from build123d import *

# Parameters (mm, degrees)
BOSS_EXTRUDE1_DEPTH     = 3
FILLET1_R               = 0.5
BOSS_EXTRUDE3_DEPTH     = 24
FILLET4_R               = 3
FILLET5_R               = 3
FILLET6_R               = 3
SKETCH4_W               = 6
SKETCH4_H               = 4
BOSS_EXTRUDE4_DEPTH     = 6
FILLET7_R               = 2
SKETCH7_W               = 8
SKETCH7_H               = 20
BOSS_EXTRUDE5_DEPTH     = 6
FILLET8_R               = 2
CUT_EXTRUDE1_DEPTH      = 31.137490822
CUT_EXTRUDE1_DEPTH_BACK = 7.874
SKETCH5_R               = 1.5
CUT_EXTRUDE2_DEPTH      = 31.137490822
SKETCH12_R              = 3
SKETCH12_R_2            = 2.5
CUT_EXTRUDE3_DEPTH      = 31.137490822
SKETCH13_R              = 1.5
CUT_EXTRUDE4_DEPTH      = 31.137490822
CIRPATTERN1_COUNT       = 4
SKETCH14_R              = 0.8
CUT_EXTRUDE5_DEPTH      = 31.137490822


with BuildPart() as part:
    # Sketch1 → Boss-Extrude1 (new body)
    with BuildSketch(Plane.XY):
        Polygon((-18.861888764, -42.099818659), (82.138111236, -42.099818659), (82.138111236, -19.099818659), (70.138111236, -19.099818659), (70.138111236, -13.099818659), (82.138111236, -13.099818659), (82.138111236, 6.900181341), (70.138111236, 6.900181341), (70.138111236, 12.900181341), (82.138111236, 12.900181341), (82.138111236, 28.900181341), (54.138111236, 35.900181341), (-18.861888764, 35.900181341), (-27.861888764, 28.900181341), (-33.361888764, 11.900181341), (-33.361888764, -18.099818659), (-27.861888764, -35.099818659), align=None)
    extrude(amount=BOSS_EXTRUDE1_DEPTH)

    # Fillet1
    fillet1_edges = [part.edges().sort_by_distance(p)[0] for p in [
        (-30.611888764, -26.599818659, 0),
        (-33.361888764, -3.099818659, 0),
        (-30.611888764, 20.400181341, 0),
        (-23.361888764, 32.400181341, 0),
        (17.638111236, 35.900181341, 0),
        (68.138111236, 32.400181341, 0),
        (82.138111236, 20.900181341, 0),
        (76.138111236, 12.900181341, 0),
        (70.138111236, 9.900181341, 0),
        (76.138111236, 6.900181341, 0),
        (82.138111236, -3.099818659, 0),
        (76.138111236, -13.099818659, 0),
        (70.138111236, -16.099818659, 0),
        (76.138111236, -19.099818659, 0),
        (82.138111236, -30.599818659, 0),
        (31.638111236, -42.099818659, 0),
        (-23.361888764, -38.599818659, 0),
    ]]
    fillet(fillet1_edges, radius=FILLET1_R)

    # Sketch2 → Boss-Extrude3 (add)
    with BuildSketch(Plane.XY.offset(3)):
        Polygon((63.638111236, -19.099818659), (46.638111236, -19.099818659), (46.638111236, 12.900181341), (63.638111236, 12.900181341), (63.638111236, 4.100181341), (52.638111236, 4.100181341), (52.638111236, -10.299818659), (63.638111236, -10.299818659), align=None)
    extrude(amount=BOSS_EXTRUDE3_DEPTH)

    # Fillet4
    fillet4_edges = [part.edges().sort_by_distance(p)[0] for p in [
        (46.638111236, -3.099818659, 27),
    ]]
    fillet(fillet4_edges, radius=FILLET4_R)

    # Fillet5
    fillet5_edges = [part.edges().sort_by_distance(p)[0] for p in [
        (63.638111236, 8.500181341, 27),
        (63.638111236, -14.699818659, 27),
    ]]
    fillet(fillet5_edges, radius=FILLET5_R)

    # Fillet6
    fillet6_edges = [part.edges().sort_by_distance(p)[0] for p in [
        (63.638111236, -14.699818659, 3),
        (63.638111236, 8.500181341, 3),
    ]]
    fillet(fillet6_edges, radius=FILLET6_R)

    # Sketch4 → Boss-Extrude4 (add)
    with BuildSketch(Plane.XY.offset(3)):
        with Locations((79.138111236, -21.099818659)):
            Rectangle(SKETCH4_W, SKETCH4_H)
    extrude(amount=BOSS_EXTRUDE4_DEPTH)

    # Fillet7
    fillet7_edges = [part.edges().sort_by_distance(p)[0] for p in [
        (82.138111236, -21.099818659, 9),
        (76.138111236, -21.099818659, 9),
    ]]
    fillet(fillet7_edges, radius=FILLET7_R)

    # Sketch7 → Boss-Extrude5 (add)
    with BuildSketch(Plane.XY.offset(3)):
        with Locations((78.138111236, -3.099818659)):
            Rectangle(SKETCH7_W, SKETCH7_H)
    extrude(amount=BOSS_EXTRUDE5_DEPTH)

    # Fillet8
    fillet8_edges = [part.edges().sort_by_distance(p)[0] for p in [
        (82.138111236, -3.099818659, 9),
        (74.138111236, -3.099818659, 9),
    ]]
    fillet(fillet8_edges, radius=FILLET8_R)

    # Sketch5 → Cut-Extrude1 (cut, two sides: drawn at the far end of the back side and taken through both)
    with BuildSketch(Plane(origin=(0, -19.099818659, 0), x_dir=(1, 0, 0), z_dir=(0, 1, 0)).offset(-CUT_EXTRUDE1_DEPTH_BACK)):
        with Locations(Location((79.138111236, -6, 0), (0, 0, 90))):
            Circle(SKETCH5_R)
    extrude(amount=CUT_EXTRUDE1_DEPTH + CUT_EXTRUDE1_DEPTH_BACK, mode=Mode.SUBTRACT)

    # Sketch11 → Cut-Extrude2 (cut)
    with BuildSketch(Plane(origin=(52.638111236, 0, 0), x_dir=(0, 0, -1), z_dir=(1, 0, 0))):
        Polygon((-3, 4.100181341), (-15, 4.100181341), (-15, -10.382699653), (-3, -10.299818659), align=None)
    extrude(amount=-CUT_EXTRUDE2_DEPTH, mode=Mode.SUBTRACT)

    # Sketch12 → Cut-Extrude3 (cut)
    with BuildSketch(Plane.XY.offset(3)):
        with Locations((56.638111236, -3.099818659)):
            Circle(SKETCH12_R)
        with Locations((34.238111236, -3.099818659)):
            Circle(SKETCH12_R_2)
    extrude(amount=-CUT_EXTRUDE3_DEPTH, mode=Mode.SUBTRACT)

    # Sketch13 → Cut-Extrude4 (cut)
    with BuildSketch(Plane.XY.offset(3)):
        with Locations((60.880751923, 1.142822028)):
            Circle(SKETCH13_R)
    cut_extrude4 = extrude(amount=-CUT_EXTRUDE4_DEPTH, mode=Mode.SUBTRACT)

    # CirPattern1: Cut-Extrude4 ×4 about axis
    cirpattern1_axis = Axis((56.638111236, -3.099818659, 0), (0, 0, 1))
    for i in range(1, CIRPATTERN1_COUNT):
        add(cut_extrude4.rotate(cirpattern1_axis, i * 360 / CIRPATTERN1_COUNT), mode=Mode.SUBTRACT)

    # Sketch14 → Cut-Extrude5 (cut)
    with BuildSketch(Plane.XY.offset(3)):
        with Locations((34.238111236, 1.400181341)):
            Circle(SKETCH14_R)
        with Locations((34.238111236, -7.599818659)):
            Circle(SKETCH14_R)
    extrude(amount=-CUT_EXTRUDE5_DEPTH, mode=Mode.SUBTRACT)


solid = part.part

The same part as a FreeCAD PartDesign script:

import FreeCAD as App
import Part
import Sketcher
from FreeCAD import Vector


def edges_at(feature, points):
    """Names of the edges that pass closest to the given points."""
    edges = feature.Shape.Edges
    near = lambda p: min(range(len(edges)), key=lambda i: edges[i].distToShape(Part.Vertex(*p))[0])
    return sorted({f"Edge{near(p) + 1}" for p in points})


def add_polygon(sketch, points):
    """Adds a closed chain of lines whose ends are joined by coincident constraints."""
    first, n = sketch.GeometryCount, len(points)
    for a, b in zip(points, points[1:] + points[:1]):
        sketch.addGeometry(Part.LineSegment(App.Vector(*a, 0), App.Vector(*b, 0)), False)
    for i in range(n):
        sketch.addConstraint(Sketcher.Constraint("Coincident", first + i, 2, first + (i + 1) % n, 1))

doc = App.newDocument("Part")
body = doc.addObject("PartDesign::Body", "Body")

sketch1 = body.newObject("Sketcher::SketchObject", "Sketch")
sketch1.AttachmentSupport = (doc.getObject("XY_Plane"), [""])
sketch1.MapMode = "FlatFace"
add_polygon(sketch1, [(-19, -42), (82, -42), (82, -19), (70, -19), (70, -13), (82, -13), (82, 7), (70, 7), (70, 13), (82, 13), (82, 29), (54, 36), (-19, 36), (-28, 29), (-33, 12), (-33, -18), (-28, -35)])
sketch1.addConstraint([
    Sketcher.Constraint("Horizontal", 0),
    Sketcher.Constraint("Vertical", 1),
    Sketcher.Constraint("Horizontal", 2),
    Sketcher.Constraint("Vertical", 3),
    Sketcher.Constraint("Horizontal", 4),
    Sketcher.Constraint("Vertical", 5),
    Sketcher.Constraint("Horizontal", 6),
    Sketcher.Constraint("Vertical", 7),
    Sketcher.Constraint("Horizontal", 8),
    Sketcher.Constraint("Vertical", 9),
    Sketcher.Constraint("Horizontal", 11),
    Sketcher.Constraint("Vertical", 14),
    Sketcher.Constraint("Horizontal", 9, 2, 12, 2),
    Sketcher.Constraint("Vertical", 1, 2, 4, 2),
    Sketcher.Constraint("Vertical", 3, 2, 6, 2),
    Sketcher.Constraint("Vertical", 5, 2, 8, 2),
    Sketcher.Constraint("Vertical", 12, 2, 15, 2),
    Sketcher.Constraint("Vertical", 11, 2, 16, 2),
    Sketcher.Constraint("Equal", 3, 7),
    Sketcher.Constraint("Equal", 13, 15),
    Sketcher.Constraint("Equal", 12, 16),
    Sketcher.Constraint("DistanceX", 0, 1, 0, 2, 101.0),
    Sketcher.Constraint("DistanceX", 2, 2, 2, 1, 12.0),
    Sketcher.Constraint("DistanceX", 11, 2, 11, 1, 73.0),
    Sketcher.Constraint("DistanceY", 1, 1, 1, 2, 23.0),
    Sketcher.Constraint("DistanceY", 3, 1, 3, 2, 6.0),
    Sketcher.Constraint("DistanceY", 5, 1, 5, 2, 20.0),
    Sketcher.Constraint("DistanceY", 9, 1, 9, 2, 16.0),
    Sketcher.Constraint("DistanceY", 14, 2, 14, 1, 30.0),
    Sketcher.Constraint("DistanceY", 7, 2, 10, 2, 23.0),
    Sketcher.Constraint("DistanceX", 12, 2, 11, 2, 9.0),
    Sketcher.Constraint("DistanceX", 13, 2, 12, 2, 5.5),
    Sketcher.Constraint("DistanceX", -1, 1, 0, 2, 82.138111),
    Sketcher.Constraint("DistanceY", 0, 2, -1, 1, 42.099819),
])
pad1 = body.newObject("PartDesign::Pad", "Pad")
pad1.Profile = sketch1
pad1.Length = 3
doc.recompute()

fillet = body.newObject("PartDesign::Fillet", "Fillet")
fillet.Base = (pad1, edges_at(pad1, [
    (-30.612, -26.6, 0),
    (-33.362, -3.1, 0),
    (-30.612, 20.4, 0),
    (-23.362, 32.4, 0),
    (17.638, 35.9, 0),
    (68.138, 32.4, 0),
    (82.138, 20.9, 0),
    (76.138, 12.9, 0),
    (70.138, 9.9, 0),
    (76.138, 6.9, 0),
    (82.138, -3.1, 0),
    (76.138, -13.1, 0),
    (70.138, -16.1, 0),
    (76.138, -19.1, 0),
    (82.138, -30.6, 0),
    (31.638, -42.1, 0),
    (-23.362, -38.6, 0),
]))
fillet.Radius = 0.5

sketch2 = body.newObject("Sketcher::SketchObject", "Sketch001")
sketch2.AttachmentSupport = (doc.getObject("XY_Plane"), [""])
sketch2.MapMode = "FlatFace"
sketch2.AttachmentOffset = App.Placement(Vector(0, 0, 3), App.Rotation())
add_polygon(sketch2, [(47, -19), (64, -19), (64, -10), (53, -10), (53, 4), (64, 4), (64, 13), (47, 13)])
sketch2.addConstraint([
    Sketcher.Constraint("Horizontal", 0),
    Sketcher.Constraint("Vertical", 1),
    Sketcher.Constraint("Horizontal", 2),
    Sketcher.Constraint("Vertical", 3),
    Sketcher.Constraint("Horizontal", 4),
    Sketcher.Constraint("Vertical", 5),
    Sketcher.Constraint("Horizontal", 6),
    Sketcher.Constraint("Vertical", 7),
    Sketcher.Constraint("Vertical", 1, 2, 4, 2),
    Sketcher.Constraint("Equal", 1, 5),
    Sketcher.Constraint("DistanceX", 0, 1, 0, 2, 17.0),
    Sketcher.Constraint("DistanceX", 2, 2, 2, 1, 11.0),
    Sketcher.Constraint("DistanceY", 7, 2, 7, 1, 32.0),
    Sketcher.Constraint("DistanceY", 1, 1, 1, 2, 8.8),
    Sketcher.Constraint("DistanceX", -1, 1, 0, 2, 63.638111),
    Sketcher.Constraint("DistanceY", 0, 2, -1, 1, 19.099819),
])
pad2 = body.newObject("PartDesign::Pad", "Pad001")
pad2.Profile = sketch2
pad2.Length = 24
doc.recompute()

fillet2 = body.newObject("PartDesign::Fillet", "Fillet001")
fillet2.Base = (pad2, edges_at(pad2, [(46.638, -3.1, 27)]))
fillet2.Radius = 3
doc.recompute()

fillet3 = body.newObject("PartDesign::Fillet", "Fillet002")
fillet3.Base = (fillet2, edges_at(fillet2, [(63.638, 8.5, 27), (63.638, -14.7, 27)]))
fillet3.Radius = 3
doc.recompute()

fillet4 = body.newObject("PartDesign::Fillet", "Fillet003")
fillet4.Base = (fillet3, edges_at(fillet3, [(63.638, -14.7, 3), (63.638, 8.5, 3)]))
fillet4.Radius = 3

sketch3 = body.newObject("Sketcher::SketchObject", "Sketch002")
sketch3.AttachmentSupport = (doc.getObject("XY_Plane"), [""])
sketch3.MapMode = "FlatFace"
sketch3.AttachmentOffset = App.Placement(Vector(0, 0, 3), App.Rotation())
add_polygon(sketch3, [(76.1, -19.1), (76.1, -23.1), (82.1, -23.1), (82.1, -19.1)])
sketch3.addConstraint([
    Sketcher.Constraint("Vertical", 0),
    Sketcher.Constraint("Horizontal", 1),
    Sketcher.Constraint("Vertical", 2),
    Sketcher.Constraint("Horizontal", 3),
    Sketcher.Constraint("DistanceX", 1, 1, 1, 2, 6.0),
    Sketcher.Constraint("DistanceY", 0, 2, 0, 1, 4.0),
    Sketcher.Constraint("DistanceX", -1, 1, 0, 2, 76.138111),
    Sketcher.Constraint("DistanceY", 0, 2, -1, 1, 23.099819),
])
pad3 = body.newObject("PartDesign::Pad", "Pad002")
pad3.Profile = sketch3
pad3.Length = 6
doc.recompute()

fillet5 = body.newObject("PartDesign::Fillet", "Fillet004")
fillet5.Base = (pad3, edges_at(pad3, [(82.138, -21.1, 9), (76.138, -21.1, 9)]))
fillet5.Radius = 2

sketch4 = body.newObject("Sketcher::SketchObject", "Sketch003")
sketch4.AttachmentSupport = (doc.getObject("XY_Plane"), [""])
sketch4.MapMode = "FlatFace"
sketch4.AttachmentOffset = App.Placement(Vector(0, 0, 3), App.Rotation())
add_polygon(sketch4, [(74, 7), (74, -13), (82, -13), (82, 7)])
sketch4.addConstraint([
    Sketcher.Constraint("Vertical", 0),
    Sketcher.Constraint("Horizontal", 1),
    Sketcher.Constraint("Vertical", 2),
    Sketcher.Constraint("Horizontal", 3),
    Sketcher.Constraint("DistanceX", 1, 1, 1, 2, 8.0),
    Sketcher.Constraint("DistanceY", 0, 2, 0, 1, 20.0),
    Sketcher.Constraint("DistanceX", -1, 1, 0, 2, 74.138111),
    Sketcher.Constraint("DistanceY", 0, 2, -1, 1, 13.099819),
])
pad4 = body.newObject("PartDesign::Pad", "Pad003")
pad4.Profile = sketch4
pad4.Length = 6
doc.recompute()

fillet6 = body.newObject("PartDesign::Fillet", "Fillet005")
fillet6.Base = (pad4, edges_at(pad4, [(82.138, -3.1, 9), (74.138, -3.1, 9)]))
fillet6.Radius = 2

sketch5 = body.newObject("Sketcher::SketchObject", "Sketch004")
sketch5.AttachmentSupport = (doc.getObject("XZ_Plane"), [""])
sketch5.MapMode = "FlatFace"
sketch5.AttachmentOffset = App.Placement(Vector(0, 0, 19.099819), App.Rotation())
sketch5.addGeometry(Part.Circle(Vector(79.1, 6, 0), Vector(0, 0, 1), 1.5), False)
sketch5.addConstraint([
    Sketcher.Constraint("Diameter", 0, 3.0),
    Sketcher.Constraint("DistanceY", -1, 1, 0, 3, 6.0),
    Sketcher.Constraint("DistanceX", -1, 1, 0, 3, 79.138111),
])
pocket1 = body.newObject("PartDesign::Pocket", "Pocket")
pocket1.Profile = sketch5
pocket1.Type = "ThroughAll"
pocket1.Midplane = True

sketch6 = body.newObject("Sketcher::SketchObject", "Sketch005")
sketch6.AttachmentSupport = (doc.getObject("YZ_Plane"), [""])
sketch6.MapMode = "FlatFace"
sketch6.AttachmentOffset = App.Placement(Vector(0, 0, 52.638111), App.Rotation())
add_polygon(sketch6, [(4, 3), (4, 15), (-10, 15), (-10, 3)])
sketch6.addConstraint([
    Sketcher.Constraint("Vertical", 0),
    Sketcher.Constraint("Horizontal", 1),
    Sketcher.Constraint("Horizontal", 3),
    Sketcher.Constraint("DistanceY", 0, 1, 0, 2, 12.0),
    Sketcher.Constraint("DistanceX", 3, 1, 3, 2, 14.4),
    Sketcher.Constraint("DistanceY", -1, 1, 0, 2, 15.0),
    Sketcher.Constraint("DistanceX", 1, 2, 1, 1, 14.482881),
    Sketcher.Constraint("DistanceX", 1, 2, -1, 1, 10.3827),
])
pocket2 = body.newObject("PartDesign::Pocket", "Pocket001")
pocket2.Profile = sketch6
pocket2.Length = 31.137491

sketch7 = body.newObject("Sketcher::SketchObject", "Sketch006")
sketch7.AttachmentSupport = (doc.getObject("XY_Plane"), [""])
sketch7.MapMode = "FlatFace"
sketch7.AttachmentOffset = App.Placement(Vector(0, 0, 3), App.Rotation())
sketch7.addGeometry([
    Part.Circle(Vector(56.6, -3.1, 0), Vector(0, 0, 1), 3),
    Part.Circle(Vector(34.2, -3.1, 0), Vector(0, 0, 1), 2.5),
], False)
sketch7.addConstraint([
    Sketcher.Constraint("Horizontal", 0, 3, 1, 3),
    Sketcher.Constraint("Diameter", 0, 6.0),
    Sketcher.Constraint("Diameter", 1, 5.0),
    Sketcher.Constraint("DistanceX", 1, 3, 0, 3, 22.4),
    Sketcher.Constraint("DistanceX", -1, 1, 0, 3, 56.638111),
    Sketcher.Constraint("DistanceY", 0, 3, -1, 1, 3.099819),
])
pocket3 = body.newObject("PartDesign::Pocket", "Pocket002")
pocket3.Profile = sketch7
pocket3.Length = 31.137491

sketch8 = body.newObject("Sketcher::SketchObject", "Sketch007")
sketch8.AttachmentSupport = (doc.getObject("XY_Plane"), [""])
sketch8.MapMode = "FlatFace"
sketch8.AttachmentOffset = App.Placement(Vector(0, 0, 3), App.Rotation())
sketch8.addGeometry(Part.Circle(Vector(60.9, 1.1, 0), Vector(0, 0, 1), 1.5), False)
sketch8.addConstraint([
    Sketcher.Constraint("Diameter", 0, 3.0),
    Sketcher.Constraint("DistanceX", -1, 1, 0, 3, 60.880752),
    Sketcher.Constraint("DistanceY", -1, 1, 0, 3, 1.142822),
])
pocket4 = body.newObject("PartDesign::Pocket", "Pocket003")
pocket4.Profile = sketch8
pocket4.Length = 31.137491
doc.recompute()

datumline = body.newObject("PartDesign::Line", "DatumLine")
datumline.Placement = App.Placement(Vector(56.638111, -3.099819, 0), App.Rotation(Vector(0, 0, 1), Vector(0, 0, 1)))
polarpattern = body.newObject("PartDesign::PolarPattern", "PolarPattern")
polarpattern.Originals = [pocket4]
polarpattern.Axis = (datumline, [""])
polarpattern.Angle = 360
polarpattern.Occurrences = 4
body.Tip = polarpattern

sketch9 = body.newObject("Sketcher::SketchObject", "Sketch008")
sketch9.AttachmentSupport = (doc.getObject("XY_Plane"), [""])
sketch9.MapMode = "FlatFace"
sketch9.AttachmentOffset = App.Placement(Vector(0, 0, 3), App.Rotation())
sketch9.addGeometry([
    Part.Circle(Vector(34.2, 1.4, 0), Vector(0, 0, 1), 0.8),
    Part.Circle(Vector(34.2, -7.6, 0), Vector(0, 0, 1), 0.8),
], False)
sketch9.addConstraint([
    Sketcher.Constraint("Equal", 0, 1),
    Sketcher.Constraint("Vertical", 0, 3, 1, 3),
    Sketcher.Constraint("Diameter", 0, 1.6),
    Sketcher.Constraint("DistanceY", 1, 3, 0, 3, 9.0),
    Sketcher.Constraint("DistanceX", -1, 1, 0, 3, 34.238111),
    Sketcher.Constraint("DistanceY", -1, 1, 0, 3, 1.400181),
])
pocket5 = body.newObject("PartDesign::Pocket", "Pocket004")
pocket5.Profile = sketch9
pocket5.Length = 31.137491

doc.recompute()
